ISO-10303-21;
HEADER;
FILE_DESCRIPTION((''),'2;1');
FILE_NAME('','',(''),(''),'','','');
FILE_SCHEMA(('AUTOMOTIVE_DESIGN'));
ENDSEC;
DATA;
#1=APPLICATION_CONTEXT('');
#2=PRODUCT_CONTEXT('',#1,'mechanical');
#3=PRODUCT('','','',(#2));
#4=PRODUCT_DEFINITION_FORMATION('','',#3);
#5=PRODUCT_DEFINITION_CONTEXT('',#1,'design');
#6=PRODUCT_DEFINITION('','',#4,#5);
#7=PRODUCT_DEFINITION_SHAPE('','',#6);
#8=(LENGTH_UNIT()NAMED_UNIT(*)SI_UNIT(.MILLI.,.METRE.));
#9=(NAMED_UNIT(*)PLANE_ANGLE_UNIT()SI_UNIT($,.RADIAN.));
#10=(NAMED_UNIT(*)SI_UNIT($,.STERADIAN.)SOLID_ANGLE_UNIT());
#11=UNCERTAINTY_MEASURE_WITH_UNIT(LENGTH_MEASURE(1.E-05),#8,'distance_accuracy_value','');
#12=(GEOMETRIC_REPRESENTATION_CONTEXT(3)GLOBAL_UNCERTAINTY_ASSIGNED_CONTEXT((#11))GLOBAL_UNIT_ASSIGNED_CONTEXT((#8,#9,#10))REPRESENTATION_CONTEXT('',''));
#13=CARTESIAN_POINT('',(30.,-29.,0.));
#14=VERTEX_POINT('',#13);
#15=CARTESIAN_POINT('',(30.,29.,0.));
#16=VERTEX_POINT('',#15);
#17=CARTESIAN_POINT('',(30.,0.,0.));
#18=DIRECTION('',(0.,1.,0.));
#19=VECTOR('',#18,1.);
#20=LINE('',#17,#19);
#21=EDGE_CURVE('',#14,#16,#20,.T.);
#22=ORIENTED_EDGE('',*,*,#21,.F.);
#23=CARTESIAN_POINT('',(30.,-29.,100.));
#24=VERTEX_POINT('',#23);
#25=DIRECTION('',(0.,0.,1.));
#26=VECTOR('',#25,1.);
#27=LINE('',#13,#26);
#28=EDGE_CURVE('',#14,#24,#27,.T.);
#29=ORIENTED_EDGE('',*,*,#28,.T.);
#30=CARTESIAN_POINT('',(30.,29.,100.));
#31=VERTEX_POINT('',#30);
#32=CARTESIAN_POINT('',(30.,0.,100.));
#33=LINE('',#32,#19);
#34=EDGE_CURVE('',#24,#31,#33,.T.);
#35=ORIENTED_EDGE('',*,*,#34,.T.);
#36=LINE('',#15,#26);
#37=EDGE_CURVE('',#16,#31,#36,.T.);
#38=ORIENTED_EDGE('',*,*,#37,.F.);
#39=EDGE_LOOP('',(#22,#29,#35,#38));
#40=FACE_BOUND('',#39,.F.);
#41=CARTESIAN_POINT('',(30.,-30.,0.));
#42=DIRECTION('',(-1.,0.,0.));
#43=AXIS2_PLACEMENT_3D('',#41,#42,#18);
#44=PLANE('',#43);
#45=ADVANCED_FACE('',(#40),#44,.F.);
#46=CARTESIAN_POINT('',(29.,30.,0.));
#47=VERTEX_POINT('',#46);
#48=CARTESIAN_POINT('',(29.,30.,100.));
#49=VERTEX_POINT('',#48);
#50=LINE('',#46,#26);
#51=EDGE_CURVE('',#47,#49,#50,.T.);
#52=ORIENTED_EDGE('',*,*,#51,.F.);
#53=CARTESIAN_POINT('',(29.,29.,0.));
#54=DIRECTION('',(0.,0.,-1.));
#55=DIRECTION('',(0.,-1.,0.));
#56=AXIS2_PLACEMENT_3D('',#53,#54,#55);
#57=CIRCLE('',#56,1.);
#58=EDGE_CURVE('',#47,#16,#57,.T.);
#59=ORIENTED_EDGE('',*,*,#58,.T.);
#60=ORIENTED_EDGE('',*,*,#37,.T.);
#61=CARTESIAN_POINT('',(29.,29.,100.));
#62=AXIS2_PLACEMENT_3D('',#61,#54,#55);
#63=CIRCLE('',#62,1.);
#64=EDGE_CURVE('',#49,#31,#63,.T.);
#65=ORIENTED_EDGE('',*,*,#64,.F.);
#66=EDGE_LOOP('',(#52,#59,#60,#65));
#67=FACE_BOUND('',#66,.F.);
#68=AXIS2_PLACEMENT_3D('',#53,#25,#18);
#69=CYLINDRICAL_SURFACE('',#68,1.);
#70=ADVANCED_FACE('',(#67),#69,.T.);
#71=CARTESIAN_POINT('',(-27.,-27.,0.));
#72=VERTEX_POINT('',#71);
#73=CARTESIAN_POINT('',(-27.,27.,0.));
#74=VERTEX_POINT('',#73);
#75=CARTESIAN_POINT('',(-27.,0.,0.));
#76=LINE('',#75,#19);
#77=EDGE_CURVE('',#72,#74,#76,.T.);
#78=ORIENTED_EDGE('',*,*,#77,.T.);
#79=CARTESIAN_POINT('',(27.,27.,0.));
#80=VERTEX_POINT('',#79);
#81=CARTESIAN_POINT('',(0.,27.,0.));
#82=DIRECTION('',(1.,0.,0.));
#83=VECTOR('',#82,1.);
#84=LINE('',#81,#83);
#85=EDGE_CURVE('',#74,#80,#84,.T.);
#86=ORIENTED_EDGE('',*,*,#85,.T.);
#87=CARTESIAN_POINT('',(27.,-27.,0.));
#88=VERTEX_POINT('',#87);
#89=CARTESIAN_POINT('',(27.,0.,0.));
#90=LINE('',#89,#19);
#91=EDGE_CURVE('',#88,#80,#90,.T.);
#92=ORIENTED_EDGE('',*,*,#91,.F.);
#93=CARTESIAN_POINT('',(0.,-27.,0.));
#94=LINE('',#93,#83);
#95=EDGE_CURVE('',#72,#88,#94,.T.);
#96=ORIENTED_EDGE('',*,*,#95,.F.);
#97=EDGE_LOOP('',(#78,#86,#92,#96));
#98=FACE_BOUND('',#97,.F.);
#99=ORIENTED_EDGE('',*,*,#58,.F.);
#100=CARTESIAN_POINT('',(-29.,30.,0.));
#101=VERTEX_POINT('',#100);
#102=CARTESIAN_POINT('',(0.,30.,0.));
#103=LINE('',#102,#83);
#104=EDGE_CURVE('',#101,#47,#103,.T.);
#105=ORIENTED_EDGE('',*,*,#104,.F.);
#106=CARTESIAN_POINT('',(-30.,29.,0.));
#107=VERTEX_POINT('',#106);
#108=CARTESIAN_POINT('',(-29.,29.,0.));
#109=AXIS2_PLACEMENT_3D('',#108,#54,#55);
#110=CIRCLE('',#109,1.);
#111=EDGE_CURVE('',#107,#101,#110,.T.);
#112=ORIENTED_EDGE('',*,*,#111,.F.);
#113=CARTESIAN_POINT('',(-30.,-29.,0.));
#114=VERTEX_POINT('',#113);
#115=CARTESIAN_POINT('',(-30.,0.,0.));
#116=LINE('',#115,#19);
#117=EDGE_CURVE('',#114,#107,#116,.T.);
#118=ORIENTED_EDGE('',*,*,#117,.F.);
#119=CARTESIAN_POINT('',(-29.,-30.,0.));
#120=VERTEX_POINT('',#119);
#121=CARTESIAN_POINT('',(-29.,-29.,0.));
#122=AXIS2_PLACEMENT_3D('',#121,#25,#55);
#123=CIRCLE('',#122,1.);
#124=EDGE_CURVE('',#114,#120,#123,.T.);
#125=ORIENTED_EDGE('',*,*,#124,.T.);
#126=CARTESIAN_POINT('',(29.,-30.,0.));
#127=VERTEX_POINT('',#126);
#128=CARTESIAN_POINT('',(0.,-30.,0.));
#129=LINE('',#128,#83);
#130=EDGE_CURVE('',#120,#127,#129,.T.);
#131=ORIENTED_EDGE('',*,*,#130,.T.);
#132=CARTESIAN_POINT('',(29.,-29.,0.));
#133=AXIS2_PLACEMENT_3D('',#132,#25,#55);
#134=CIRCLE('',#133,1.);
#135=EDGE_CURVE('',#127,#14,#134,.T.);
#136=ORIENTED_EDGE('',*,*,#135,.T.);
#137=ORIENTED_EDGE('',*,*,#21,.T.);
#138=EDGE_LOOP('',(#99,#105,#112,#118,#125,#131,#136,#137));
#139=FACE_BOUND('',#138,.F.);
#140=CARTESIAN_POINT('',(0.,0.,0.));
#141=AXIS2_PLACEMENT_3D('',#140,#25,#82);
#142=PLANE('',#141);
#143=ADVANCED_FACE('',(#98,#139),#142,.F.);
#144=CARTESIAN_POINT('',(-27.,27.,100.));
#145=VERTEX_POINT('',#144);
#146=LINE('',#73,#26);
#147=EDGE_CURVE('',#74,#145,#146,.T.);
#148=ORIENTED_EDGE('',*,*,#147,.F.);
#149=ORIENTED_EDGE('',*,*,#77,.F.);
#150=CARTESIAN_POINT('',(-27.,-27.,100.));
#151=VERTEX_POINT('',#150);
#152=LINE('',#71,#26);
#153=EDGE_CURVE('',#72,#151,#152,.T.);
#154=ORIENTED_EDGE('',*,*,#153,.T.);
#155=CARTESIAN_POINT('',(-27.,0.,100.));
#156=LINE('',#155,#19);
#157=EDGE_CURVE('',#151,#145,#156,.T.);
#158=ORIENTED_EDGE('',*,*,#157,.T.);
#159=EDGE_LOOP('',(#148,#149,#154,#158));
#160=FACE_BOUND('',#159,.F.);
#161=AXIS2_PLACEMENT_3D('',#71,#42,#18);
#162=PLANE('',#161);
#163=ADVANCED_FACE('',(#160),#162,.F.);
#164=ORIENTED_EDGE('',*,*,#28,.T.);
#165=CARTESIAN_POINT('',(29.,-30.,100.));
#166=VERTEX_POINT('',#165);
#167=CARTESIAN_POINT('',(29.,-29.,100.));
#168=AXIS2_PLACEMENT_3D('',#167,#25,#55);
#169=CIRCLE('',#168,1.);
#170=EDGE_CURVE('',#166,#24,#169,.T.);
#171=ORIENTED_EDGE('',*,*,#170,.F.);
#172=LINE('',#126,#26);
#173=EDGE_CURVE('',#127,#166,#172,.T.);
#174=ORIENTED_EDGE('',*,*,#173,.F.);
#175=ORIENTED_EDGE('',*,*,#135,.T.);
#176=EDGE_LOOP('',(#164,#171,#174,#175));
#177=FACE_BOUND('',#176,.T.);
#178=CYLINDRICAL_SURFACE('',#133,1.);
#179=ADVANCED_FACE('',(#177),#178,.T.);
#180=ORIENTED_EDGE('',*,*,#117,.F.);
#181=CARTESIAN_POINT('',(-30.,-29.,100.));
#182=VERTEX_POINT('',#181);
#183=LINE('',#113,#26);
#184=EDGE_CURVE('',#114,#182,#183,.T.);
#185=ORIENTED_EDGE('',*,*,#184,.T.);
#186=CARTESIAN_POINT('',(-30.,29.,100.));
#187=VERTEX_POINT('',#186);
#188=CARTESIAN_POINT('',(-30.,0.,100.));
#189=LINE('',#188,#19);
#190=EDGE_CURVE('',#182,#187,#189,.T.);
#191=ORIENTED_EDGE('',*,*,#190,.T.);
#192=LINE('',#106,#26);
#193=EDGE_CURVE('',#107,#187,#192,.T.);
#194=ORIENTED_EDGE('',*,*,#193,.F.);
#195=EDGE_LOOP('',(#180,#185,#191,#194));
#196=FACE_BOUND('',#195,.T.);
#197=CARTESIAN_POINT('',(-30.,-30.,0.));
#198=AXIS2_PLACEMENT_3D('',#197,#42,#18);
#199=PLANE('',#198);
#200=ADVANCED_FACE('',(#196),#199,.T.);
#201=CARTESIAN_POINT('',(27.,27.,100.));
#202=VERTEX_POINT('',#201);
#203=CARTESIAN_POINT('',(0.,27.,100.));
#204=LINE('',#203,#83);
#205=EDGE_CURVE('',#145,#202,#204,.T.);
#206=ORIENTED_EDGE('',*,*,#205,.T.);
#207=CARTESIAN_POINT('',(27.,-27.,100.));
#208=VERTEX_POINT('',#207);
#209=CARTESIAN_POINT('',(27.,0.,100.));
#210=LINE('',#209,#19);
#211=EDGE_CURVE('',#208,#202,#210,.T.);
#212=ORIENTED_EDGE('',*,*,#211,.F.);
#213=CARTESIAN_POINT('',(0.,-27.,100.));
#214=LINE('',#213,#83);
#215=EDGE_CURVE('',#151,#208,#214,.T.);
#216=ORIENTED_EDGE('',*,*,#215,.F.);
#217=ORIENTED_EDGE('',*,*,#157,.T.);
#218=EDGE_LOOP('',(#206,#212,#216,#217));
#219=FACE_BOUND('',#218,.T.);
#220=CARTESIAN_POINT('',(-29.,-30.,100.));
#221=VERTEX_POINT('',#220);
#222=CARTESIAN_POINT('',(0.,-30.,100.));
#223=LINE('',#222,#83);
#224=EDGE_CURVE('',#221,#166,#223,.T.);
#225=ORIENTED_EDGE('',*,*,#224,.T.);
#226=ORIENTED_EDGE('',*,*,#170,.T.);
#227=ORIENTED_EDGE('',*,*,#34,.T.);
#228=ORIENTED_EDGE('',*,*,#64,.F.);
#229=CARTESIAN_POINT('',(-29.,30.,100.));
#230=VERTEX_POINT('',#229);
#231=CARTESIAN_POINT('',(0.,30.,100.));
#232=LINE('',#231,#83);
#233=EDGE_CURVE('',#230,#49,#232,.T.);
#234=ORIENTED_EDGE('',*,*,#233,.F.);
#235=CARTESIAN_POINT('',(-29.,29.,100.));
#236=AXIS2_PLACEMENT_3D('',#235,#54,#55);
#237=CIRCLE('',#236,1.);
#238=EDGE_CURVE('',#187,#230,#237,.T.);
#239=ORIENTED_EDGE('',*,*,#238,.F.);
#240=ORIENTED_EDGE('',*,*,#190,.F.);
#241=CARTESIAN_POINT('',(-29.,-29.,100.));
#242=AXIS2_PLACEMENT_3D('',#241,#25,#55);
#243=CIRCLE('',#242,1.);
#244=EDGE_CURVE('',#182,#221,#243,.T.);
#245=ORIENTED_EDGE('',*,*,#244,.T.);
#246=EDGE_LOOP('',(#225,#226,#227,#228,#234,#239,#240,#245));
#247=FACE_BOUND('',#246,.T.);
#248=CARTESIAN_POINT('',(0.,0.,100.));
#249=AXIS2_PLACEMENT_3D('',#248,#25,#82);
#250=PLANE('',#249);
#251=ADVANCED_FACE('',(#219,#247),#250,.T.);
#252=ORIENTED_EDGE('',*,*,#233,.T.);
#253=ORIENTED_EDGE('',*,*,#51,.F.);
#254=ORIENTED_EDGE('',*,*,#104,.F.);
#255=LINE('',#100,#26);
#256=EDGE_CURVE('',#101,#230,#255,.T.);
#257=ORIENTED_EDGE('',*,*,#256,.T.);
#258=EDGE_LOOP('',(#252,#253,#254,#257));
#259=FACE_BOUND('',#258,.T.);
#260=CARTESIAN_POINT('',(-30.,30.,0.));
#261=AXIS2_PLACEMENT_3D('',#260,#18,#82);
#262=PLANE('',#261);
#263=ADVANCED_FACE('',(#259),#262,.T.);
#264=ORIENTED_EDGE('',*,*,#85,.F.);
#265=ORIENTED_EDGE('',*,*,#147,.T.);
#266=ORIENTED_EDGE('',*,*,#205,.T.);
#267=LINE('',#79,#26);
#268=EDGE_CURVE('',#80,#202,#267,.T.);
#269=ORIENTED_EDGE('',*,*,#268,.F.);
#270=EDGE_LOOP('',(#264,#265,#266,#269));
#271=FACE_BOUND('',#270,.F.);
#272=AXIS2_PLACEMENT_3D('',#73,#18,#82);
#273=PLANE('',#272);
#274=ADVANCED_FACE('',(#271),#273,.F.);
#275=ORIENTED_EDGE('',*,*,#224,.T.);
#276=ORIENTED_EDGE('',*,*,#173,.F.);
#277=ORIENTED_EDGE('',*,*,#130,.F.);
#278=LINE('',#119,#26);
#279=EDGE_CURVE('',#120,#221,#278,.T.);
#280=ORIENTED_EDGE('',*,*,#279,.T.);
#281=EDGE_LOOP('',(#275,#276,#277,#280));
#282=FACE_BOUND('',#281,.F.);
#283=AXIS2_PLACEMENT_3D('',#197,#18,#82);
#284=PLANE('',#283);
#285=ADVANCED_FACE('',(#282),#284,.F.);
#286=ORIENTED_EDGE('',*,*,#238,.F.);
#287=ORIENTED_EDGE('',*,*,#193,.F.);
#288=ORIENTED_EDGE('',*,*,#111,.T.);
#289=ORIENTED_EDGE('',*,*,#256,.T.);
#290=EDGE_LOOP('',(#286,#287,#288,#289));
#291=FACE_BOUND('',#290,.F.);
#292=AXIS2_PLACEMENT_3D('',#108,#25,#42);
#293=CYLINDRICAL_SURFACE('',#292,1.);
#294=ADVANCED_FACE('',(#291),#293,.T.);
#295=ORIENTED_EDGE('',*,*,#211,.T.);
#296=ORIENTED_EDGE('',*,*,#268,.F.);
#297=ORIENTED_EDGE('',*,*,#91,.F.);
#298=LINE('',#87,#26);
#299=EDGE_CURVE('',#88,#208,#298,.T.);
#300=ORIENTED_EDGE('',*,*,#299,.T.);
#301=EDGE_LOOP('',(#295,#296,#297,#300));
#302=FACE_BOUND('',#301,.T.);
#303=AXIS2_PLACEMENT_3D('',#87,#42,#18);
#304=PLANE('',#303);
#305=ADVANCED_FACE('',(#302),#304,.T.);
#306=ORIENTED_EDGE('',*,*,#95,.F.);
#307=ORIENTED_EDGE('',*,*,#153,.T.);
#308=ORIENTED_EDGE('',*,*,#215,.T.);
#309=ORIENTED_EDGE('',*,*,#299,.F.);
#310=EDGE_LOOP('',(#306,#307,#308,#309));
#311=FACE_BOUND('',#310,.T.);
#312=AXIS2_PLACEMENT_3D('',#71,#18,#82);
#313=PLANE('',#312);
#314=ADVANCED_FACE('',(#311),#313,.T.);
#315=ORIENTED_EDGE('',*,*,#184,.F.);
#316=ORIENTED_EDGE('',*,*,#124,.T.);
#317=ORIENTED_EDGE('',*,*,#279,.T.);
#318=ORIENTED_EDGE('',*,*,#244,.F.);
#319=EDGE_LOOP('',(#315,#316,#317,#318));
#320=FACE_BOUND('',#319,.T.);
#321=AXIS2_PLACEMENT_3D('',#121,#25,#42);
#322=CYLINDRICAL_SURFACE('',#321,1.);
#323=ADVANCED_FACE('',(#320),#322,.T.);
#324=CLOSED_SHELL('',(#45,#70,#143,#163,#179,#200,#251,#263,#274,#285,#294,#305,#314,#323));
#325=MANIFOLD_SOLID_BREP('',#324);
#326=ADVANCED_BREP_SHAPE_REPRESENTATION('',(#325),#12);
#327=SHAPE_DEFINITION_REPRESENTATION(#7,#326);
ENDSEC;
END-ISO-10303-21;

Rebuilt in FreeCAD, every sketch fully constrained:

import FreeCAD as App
import Part
import Sketcher
from FreeCAD import Vector


def edges_at(feature, points):
    """Names of the edges that pass closest to the given points."""
    edges = feature.Shape.Edges
    near = lambda p: min(range(len(edges)), key=lambda i: edges[i].distToShape(Part.Vertex(*p))[0])
    return sorted({f"Edge{near(p) + 1}" for p in points})


def add_polygon(sketch, points):
    """Adds a closed chain of lines whose ends are joined by coincident constraints."""
    first, n = sketch.GeometryCount, len(points)
    for a, b in zip(points, points[1:] + points[:1]):
        sketch.addGeometry(Part.LineSegment(App.Vector(*a, 0), App.Vector(*b, 0)), False)
    for i in range(n):
        sketch.addConstraint(Sketcher.Constraint("Coincident", first + i, 2, first + (i + 1) % n, 1))

doc = App.newDocument("Part")
body = doc.addObject("PartDesign::Body", "Body")

# Sketch on XY plane
sketch1 = doc.addObject("Sketcher::SketchObject", "Sketch")
body.addObject(sketch1)
sketch1.AttachmentSupport = (doc.XY_Plane, [""])
sketch1.MapMode = "FlatFace"
add_polygon(sketch1, [(-30, 30), (-30, -30), (30, -30), (30, 30)])  # lines 0-3
add_polygon(sketch1, [(27, -27), (-27, -27), (-27, 27), (27, 27)])  # lines 4-7
sketch1.addConstraint(Sketcher.Constraint("Vertical", 0))
sketch1.addConstraint(Sketcher.Constraint("Horizontal", 1))
sketch1.addConstraint(Sketcher.Constraint("Vertical", 2))
sketch1.addConstraint(Sketcher.Constraint("Horizontal", 3))
sketch1.addConstraint(Sketcher.Constraint("Horizontal", 4))
sketch1.addConstraint(Sketcher.Constraint("Vertical", 5))
sketch1.addConstraint(Sketcher.Constraint("Horizontal", 6))
sketch1.addConstraint(Sketcher.Constraint("Vertical", 7))
sketch1.addConstraint(Sketcher.Constraint("Symmetric", 0, 2, 2, 2, -1, 1))
sketch1.addConstraint(Sketcher.Constraint("Symmetric", 4, 2, 6, 2, -1, 1))
sketch1.addConstraint(Sketcher.Constraint("Equal", 3, 0))
sketch1.addConstraint(Sketcher.Constraint("Equal", 6, 5))
sketch1.addConstraint(Sketcher.Constraint("DistanceX", 1, 1, 1, 2, 60.0))
sketch1.addConstraint(Sketcher.Constraint("DistanceX", 4, 2, 4, 1, 54.0))
pad1 = doc.addObject("PartDesign::Pad", "Pad")
body.addObject(pad1)
pad1.Profile = sketch1
pad1.Length = 100
doc.recompute()

fillet = doc.addObject("PartDesign::Fillet", "Fillet")
body.addObject(fillet)
fillet.Base = (pad1, edges_at(pad1, [
    (30, -30, 50),
    (30, 30, 50),
    (-30, 30, 50),
    (-30, -30, 50),
]))
fillet.Radius = 1

doc.recompute()
